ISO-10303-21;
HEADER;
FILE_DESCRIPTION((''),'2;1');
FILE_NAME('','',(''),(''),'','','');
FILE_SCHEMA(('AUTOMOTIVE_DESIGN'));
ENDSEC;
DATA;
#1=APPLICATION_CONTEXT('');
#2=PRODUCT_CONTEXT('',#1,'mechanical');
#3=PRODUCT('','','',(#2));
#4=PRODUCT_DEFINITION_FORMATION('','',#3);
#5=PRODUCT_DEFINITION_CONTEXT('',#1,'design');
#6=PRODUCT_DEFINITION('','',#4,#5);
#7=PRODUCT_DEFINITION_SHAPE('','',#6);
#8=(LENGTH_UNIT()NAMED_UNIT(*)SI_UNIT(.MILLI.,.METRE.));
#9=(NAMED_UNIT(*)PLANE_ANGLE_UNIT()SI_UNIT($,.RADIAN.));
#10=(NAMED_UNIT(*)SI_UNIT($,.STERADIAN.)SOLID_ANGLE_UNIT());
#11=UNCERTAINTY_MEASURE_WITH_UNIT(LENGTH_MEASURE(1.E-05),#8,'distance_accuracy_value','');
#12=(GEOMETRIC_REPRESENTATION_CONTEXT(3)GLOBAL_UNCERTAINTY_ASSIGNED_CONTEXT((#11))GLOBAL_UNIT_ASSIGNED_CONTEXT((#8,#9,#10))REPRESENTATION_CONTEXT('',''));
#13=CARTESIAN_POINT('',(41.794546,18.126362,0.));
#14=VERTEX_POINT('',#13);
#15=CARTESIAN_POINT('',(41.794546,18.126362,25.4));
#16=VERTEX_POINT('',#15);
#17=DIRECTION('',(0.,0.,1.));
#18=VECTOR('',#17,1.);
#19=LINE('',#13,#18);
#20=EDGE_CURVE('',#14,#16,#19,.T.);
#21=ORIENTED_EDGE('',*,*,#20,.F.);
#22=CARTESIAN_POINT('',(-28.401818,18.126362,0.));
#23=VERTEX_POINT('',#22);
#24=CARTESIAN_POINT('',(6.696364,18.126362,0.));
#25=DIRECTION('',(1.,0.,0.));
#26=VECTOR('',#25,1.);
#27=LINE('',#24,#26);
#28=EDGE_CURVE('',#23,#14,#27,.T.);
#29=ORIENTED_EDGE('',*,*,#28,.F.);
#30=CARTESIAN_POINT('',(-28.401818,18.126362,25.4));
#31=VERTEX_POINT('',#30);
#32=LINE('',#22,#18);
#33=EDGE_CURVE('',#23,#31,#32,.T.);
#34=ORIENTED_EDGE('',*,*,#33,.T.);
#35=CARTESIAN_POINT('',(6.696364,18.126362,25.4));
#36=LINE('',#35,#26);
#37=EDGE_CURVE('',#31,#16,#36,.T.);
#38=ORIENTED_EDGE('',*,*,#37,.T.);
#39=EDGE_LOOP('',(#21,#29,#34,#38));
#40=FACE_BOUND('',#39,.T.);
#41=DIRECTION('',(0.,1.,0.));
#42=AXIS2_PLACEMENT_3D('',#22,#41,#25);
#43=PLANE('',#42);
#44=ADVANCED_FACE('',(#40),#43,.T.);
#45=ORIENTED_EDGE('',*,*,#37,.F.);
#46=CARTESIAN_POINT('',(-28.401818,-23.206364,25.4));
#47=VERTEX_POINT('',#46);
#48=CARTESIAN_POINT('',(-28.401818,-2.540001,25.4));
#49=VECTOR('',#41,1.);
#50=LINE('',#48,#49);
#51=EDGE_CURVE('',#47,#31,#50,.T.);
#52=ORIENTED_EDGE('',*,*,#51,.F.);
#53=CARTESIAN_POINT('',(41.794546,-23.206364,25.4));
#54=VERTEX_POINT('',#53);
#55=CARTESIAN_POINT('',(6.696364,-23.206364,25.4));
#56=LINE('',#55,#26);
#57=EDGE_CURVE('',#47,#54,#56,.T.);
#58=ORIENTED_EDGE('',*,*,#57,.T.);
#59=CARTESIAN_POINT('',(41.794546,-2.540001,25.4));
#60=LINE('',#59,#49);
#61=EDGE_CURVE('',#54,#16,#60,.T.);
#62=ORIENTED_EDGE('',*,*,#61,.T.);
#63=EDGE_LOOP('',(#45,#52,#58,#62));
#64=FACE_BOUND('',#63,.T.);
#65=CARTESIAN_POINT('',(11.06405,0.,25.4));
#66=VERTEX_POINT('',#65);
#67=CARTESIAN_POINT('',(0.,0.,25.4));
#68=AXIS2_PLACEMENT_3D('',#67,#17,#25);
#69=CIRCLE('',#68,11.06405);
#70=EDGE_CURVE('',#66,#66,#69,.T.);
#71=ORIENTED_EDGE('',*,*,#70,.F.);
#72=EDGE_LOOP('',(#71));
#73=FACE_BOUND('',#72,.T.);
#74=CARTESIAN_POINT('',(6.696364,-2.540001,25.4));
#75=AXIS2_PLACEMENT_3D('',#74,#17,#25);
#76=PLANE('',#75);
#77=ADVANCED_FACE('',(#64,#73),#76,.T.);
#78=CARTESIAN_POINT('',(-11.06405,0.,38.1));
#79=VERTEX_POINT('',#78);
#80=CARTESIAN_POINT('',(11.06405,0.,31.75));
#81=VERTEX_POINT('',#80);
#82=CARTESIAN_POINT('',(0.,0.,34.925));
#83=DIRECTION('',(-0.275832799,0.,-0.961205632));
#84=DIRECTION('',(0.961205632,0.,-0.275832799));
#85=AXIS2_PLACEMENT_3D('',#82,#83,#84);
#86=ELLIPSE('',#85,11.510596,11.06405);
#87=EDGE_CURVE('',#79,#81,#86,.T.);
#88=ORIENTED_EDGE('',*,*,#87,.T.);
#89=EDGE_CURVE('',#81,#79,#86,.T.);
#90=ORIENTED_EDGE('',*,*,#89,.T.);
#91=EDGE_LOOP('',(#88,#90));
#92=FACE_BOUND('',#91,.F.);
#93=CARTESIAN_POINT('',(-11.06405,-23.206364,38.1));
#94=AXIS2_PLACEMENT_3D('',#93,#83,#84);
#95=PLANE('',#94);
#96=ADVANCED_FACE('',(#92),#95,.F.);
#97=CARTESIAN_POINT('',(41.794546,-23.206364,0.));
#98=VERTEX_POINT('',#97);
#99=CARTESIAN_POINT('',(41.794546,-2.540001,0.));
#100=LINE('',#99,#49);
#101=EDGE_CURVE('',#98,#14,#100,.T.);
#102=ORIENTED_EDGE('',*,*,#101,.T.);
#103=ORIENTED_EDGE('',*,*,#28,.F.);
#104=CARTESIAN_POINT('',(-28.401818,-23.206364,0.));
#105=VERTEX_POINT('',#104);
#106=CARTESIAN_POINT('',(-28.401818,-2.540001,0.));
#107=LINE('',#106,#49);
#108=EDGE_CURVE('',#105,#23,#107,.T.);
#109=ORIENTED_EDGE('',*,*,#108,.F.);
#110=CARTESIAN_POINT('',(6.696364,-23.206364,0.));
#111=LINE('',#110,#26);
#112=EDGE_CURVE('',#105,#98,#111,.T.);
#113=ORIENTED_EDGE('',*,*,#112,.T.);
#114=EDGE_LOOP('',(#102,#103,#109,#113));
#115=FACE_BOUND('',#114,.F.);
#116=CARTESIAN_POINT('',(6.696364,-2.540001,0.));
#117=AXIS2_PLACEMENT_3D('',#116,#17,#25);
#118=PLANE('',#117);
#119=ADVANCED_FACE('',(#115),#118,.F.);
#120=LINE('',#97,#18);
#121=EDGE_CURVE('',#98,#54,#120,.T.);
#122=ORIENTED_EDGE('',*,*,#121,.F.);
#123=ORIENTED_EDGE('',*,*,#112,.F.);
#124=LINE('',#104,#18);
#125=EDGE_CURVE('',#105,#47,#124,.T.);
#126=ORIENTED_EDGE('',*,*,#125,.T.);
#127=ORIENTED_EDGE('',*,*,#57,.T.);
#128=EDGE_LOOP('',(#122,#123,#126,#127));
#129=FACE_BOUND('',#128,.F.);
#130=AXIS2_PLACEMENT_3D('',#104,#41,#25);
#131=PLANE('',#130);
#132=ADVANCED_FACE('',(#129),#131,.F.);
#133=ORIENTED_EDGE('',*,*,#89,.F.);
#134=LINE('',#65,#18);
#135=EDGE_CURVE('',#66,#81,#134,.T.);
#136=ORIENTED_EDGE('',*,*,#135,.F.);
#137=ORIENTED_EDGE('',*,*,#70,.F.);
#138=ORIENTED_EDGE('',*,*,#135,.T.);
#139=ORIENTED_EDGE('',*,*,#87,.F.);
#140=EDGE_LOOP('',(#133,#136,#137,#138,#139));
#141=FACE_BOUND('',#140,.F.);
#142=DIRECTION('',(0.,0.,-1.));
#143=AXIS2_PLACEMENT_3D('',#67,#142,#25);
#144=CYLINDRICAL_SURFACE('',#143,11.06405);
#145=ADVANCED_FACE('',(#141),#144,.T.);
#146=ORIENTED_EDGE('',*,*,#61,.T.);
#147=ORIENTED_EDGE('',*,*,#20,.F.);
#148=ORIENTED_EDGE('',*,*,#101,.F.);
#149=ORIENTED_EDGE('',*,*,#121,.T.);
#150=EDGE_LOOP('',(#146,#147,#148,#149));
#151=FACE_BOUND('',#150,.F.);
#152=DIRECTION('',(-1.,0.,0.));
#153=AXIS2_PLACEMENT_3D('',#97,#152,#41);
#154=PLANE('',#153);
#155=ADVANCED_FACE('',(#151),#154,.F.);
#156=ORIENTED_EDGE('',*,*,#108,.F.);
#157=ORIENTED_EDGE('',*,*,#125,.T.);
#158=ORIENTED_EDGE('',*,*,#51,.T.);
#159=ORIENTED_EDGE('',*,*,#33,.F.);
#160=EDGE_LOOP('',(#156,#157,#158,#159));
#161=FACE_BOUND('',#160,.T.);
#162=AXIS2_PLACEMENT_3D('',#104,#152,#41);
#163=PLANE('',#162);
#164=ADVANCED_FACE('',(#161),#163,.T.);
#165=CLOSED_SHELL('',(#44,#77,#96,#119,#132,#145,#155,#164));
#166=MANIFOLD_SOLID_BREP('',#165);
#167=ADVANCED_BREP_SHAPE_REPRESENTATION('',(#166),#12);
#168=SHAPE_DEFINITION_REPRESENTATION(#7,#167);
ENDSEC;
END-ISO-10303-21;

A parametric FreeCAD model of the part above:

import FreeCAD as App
import Part
import Sketcher

V = App.Vector
Q = App.Units.Quantity


def add_polygon(sketch, points):
    """Adds a closed chain of lines whose ends are joined by coincident constraints."""
    first, n = sketch.GeometryCount, len(points)
    for a, b in zip(points, points[1:] + points[:1]):
        sketch.addGeometry(Part.LineSegment(App.Vector(*a, 0), App.Vector(*b, 0)), False)
    for i in range(n):
        sketch.addConstraint(Sketcher.Constraint("Coincident", first + i, 2, first + (i + 1) % n, 1))

doc = App.newDocument("Part")
body = doc.addObject("PartDesign::Body", "Body")

sketch1 = doc.addObject("Sketcher::SketchObject", "Sketch")
body.addObject(sketch1)
sketch1.AttachmentSupport = (doc.XY_Plane, [""])
sketch1.MapMode = "FlatFace"
add_polygon(sketch1, [(-28, 18), (-28, -23), (42, -23), (42, 18)])
sketch1.addConstraint([
    Sketcher.Constraint("Vertical", 0),
    Sketcher.Constraint("Horizontal", 1),
    Sketcher.Constraint("Vertical", 2),
    Sketcher.Constraint("Horizontal", 3),
    Sketcher.Constraint("DistanceX", 1, 1, 1, 2, Q("70.196364 mm")),
    Sketcher.Constraint("DistanceY", 0, 2, 0, 1, Q("41.332727 mm")),
    Sketcher.Constraint("DistanceX", 0, 2, -1, 1, Q("28.401818 mm")),
    Sketcher.Constraint("DistanceY", 0, 2, -1, 1, Q("23.206364 mm")),
])
pad1 = doc.addObject("PartDesign::Pad", "Pad")
body.addObject(pad1)
pad1.Profile = sketch1
pad1.Length = Q("1 in")

sketch2 = doc.addObject("Sketcher::SketchObject", "Sketch001")
body.addObject(sketch2)
sketch2.AttachmentSupport = (doc.XY_Plane, [""])
sketch2.MapMode = "FlatFace"
sketch2.AttachmentOffset = App.Placement(V(0, 0, 1 * 25.4), App.Rotation())
sketch2.addGeometry(Part.Circle(V(0, 0, 0), V(0, 0, 1), 11), False)
sketch2.addConstraint([
    Sketcher.Constraint("Coincident", 0, 3, -1, 1),
    Sketcher.Constraint("Diameter", 0, Q("22.1281 mm")),
])
pad2 = doc.addObject("PartDesign::Pad", "Pad001")
body.addObject(pad2)
pad2.Profile = sketch2
pad2.Length = Q("0.5 in")

sketch3 = doc.addObject("Sketcher::SketchObject", "Sketch002")
body.addObject(sketch3)
sketch3.AttachmentSupport = (doc.XZ_Plane, [""])
sketch3.MapMode = "FlatFace"
sketch3.AttachmentOffset = App.Placement(V(0, 0, 23.206364), App.Rotation())
add_polygon(sketch3, [(11, 38), (-11, 38), (11, 32)])
sketch3.addConstraint([
    Sketcher.Constraint("Horizontal", 0),
    Sketcher.Constraint("Vertical", 2),
    Sketcher.Constraint("DistanceY", 2, 1, 2, 2, Q("0.25 in")),
    Sketcher.Constraint("DistanceY", -1, 1, 0, 2, Q("1.5 in")),
    Sketcher.Constraint("DistanceX", 0, 2, 0, 1, Q("22.1281 mm")),
    Sketcher.Constraint("DistanceX", 0, 2, -1, 1, Q("11.06405 mm")),
])
pocket1 = doc.addObject("PartDesign::Pocket", "Pocket")
body.addObject(pocket1)
pocket1.Profile = sketch3
pocket1.Length = Q("2.31 in")

doc.recompute()
